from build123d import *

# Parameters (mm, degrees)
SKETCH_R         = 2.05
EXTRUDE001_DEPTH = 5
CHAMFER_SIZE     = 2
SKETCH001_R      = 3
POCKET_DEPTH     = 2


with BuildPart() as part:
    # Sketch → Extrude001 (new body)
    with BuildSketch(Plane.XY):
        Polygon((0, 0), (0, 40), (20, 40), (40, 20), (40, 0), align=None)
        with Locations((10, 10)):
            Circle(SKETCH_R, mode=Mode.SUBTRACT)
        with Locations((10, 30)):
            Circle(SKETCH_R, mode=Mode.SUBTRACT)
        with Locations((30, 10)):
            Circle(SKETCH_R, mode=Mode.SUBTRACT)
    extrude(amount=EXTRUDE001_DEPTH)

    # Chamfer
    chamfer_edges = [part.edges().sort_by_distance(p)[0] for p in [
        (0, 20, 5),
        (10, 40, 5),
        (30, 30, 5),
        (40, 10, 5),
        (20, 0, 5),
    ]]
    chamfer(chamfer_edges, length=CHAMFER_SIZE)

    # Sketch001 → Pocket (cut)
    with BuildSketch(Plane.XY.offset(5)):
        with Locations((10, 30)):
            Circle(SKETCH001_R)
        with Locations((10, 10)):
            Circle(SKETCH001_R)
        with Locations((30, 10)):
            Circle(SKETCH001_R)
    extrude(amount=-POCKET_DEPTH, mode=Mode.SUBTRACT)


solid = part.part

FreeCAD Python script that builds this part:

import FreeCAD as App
import Part
import Sketcher


def edges_at(feature, points):
    """Names of the edges that pass closest to the given points."""
    edges = feature.Shape.Edges
    near = lambda p: min(range(len(edges)), key=lambda i: edges[i].distToShape(Part.Vertex(*p))[0])
    return sorted({f"Edge{near(p) + 1}" for p in points})


def add_polygon(sketch, points):
    """Adds a closed chain of lines whose ends are joined by coincident constraints."""
    first, n = sketch.GeometryCount, len(points)
    for a, b in zip(points, points[1:] + points[:1]):
        sketch.addGeometry(Part.LineSegment(App.Vector(*a, 0), App.Vector(*b, 0)), False)
    for i in range(n):
        sketch.addConstraint(Sketcher.Constraint("Coincident", first + i, 2, first + (i + 1) % n, 1))

doc = App.newDocument("Part")
body = doc.addObject("PartDesign::Body", "Body")

sketch1 = body.newObject("Sketcher::SketchObject", "Sketch")
sketch1.AttachmentSupport = (doc.getObject("XY_Plane"), [""])
sketch1.MapMode = "FlatFace"
add_polygon(sketch1, [(0, 40), (0, 0), (40, 0), (40, 20), (20, 40)])
sketch1.addGeometry(Part.Circle(App.Vector(30, 10, 0), App.Vector(0, 0, 1), 2.05), False)
sketch1.addGeometry(Part.Circle(App.Vector(10, 10, 0), App.Vector(0, 0, 1), 2.05), False)
sketch1.addGeometry(Part.Circle(App.Vector(10, 30, 0), App.Vector(0, 0, 1), 2.05), False)
sketch1.addConstraint([
    Sketcher.Constraint("Vertical", 0),
    Sketcher.Constraint("Horizontal", 1),
    Sketcher.Constraint("Vertical", 2),
    Sketcher.Constraint("Horizontal", 4),
    Sketcher.Constraint("Coincident", 0, 2, -1, 1),
    Sketcher.Constraint("Equal", 5, 6),
    Sketcher.Constraint("Equal", 6, 7),
    Sketcher.Constraint("Horizontal", 5, 3, 6, 3),
    Sketcher.Constraint("Vertical", 6, 3, 7, 3),
    Sketcher.Constraint("Equal", 1, 0),
    Sketcher.Constraint("Equal", 4, 2),
    Sketcher.Constraint("Diameter", 5, 4.1),
    Sketcher.Constraint("DistanceX", 1, 1, 1, 2, 40.0),
    Sketcher.Constraint("DistanceX", 4, 2, 4, 1, 20.0),
    Sketcher.Constraint("DistanceX", -1, 1, 5, 3, 30.0),
    Sketcher.Constraint("DistanceY", -1, 1, 5, 3, 10.0),
    Sketcher.Constraint("DistanceX", -1, 1, 6, 3, 10.0),
    Sketcher.Constraint("DistanceY", -1, 1, 7, 3, 30.0),
])
pad1 = body.newObject("PartDesign::Pad", "Pad")
pad1.Profile = sketch1
pad1.Length = 5
doc.recompute()

chamfer = body.newObject("PartDesign::Chamfer", "Chamfer")
chamfer.Base = (pad1, edges_at(pad1, [
    (0, 20, 5),
    (10, 40, 5),
    (30, 30, 5),
    (40, 10, 5),
    (20, 0, 5),
]))
chamfer.Size = 2

sketch2 = body.newObject("Sketcher::SketchObject", "Sketch001")
sketch2.AttachmentSupport = (doc.getObject("XY_Plane"), [""])
sketch2.MapMode = "FlatFace"
sketch2.AttachmentOffset = App.Placement(App.Vector(0, 0, 5), App.Rotation())
sketch2.addGeometry([
    Part.Circle(App.Vector(10, 30, 0), App.Vector(0, 0, 1), 3),
    Part.Circle(App.Vector(10, 10, 0), App.Vector(0, 0, 1), 3),
    Part.Circle(App.Vector(30, 10, 0), App.Vector(0, 0, 1), 3),
], False)
sketch2.addConstraint([
    Sketcher.Constraint("Equal", 0, 1),
    Sketcher.Constraint("Equal", 1, 2),
    Sketcher.Constraint("Horizontal", 1, 3, 2, 3),
    Sketcher.Constraint("Vertical", 0, 3, 1, 3),
    Sketcher.Constraint("Diameter", 0, 6.0),
    Sketcher.Constraint("DistanceX", -1, 1, 0, 3, 10.0),
    Sketcher.Constraint("DistanceY", -1, 1, 0, 3, 30.0),
    Sketcher.Constraint("DistanceY", -1, 1, 1, 3, 10.0),
    Sketcher.Constraint("DistanceX", -1, 1, 2, 3, 30.0),
])
pocket1 = body.newObject("PartDesign::Pocket", "Pocket")
pocket1.Profile = sketch2
pocket1.Length = 2

doc.recompute()
